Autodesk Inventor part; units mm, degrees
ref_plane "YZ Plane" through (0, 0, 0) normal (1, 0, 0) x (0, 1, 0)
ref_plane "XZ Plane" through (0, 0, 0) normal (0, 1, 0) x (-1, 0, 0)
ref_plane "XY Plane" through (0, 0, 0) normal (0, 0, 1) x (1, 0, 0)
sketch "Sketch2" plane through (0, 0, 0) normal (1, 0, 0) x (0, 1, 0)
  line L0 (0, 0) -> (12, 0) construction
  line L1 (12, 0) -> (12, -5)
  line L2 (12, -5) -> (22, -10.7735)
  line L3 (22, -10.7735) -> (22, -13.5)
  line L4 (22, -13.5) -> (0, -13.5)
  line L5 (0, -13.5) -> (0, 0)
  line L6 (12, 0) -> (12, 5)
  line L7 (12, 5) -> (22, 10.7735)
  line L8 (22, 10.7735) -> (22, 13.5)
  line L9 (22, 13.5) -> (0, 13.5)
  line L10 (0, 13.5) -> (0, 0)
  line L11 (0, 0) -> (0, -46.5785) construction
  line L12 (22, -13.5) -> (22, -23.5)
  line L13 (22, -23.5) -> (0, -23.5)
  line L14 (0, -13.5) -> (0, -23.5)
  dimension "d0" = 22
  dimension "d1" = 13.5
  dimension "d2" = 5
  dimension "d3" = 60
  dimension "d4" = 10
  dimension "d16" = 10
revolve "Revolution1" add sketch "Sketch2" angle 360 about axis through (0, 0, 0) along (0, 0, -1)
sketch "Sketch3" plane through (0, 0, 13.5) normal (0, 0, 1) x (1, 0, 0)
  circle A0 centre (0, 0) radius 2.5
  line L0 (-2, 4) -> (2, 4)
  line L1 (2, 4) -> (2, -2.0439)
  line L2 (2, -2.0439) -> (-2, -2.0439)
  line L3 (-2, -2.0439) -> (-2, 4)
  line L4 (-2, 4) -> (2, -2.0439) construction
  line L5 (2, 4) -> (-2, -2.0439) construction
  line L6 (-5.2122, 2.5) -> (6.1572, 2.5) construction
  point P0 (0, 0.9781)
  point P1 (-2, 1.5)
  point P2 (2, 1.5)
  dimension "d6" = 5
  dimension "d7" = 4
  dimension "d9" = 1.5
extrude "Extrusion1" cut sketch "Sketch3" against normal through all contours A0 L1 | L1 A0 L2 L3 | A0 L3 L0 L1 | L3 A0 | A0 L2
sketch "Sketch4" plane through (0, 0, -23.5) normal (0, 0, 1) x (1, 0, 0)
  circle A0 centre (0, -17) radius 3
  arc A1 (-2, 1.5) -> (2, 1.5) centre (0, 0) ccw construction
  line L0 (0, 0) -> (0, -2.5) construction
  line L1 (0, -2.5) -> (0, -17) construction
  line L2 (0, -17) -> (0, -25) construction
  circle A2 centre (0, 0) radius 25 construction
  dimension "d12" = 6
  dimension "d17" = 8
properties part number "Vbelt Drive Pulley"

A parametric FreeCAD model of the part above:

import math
import FreeCAD as App
import Part
import Sketcher
Q = App.Units.Quantity

doc = App.newDocument("Part")
body = doc.addObject("PartDesign::Body", "Body")

# Sketch on YZ plane
sketch1 = doc.addObject("Sketcher::SketchObject", "Sketch")
body.addObject(sketch1)
sketch1.AttachmentSupport = (doc.YZ_Plane, [""])
sketch1.MapMode = "FlatFace"
sketch1.addGeometry(Part.LineSegment(App.Vector(12, -5, 0), App.Vector(12, 5, 0)), False)
sketch1.addGeometry(Part.LineSegment(App.Vector(12, 5, 0), App.Vector(22, 10.8, 0)), False)
sketch1.addGeometry(Part.LineSegment(App.Vector(22, 10.8, 0), App.Vector(22, 13.5, 0)), False)
sketch1.addGeometry(Part.LineSegment(App.Vector(22, 13.5, 0), App.Vector(0, 13.5, 0)), False)
sketch1.addGeometry(Part.LineSegment(App.Vector(0, 13.5, 0), App.Vector(0, -23.5, 0)), False)
sketch1.addGeometry(Part.LineSegment(App.Vector(0, -23.5, 0), App.Vector(22, -23.5, 0)), False)
sketch1.addGeometry(Part.LineSegment(App.Vector(22, -23.5, 0), App.Vector(22, -10.8, 0)), False)
sketch1.addGeometry(Part.LineSegment(App.Vector(22, -10.8, 0), App.Vector(12, -5, 0)), False)
sketch1.addConstraint(Sketcher.Constraint("Coincident", 0, 2, 1, 1))
sketch1.addConstraint(Sketcher.Constraint("Coincident", 1, 2, 2, 1))
sketch1.addConstraint(Sketcher.Constraint("Coincident", 2, 2, 3, 1))
sketch1.addConstraint(Sketcher.Constraint("Coincident", 3, 2, 4, 1))
sketch1.addConstraint(Sketcher.Constraint("Coincident", 4, 2, 5, 1))
sketch1.addConstraint(Sketcher.Constraint("Coincident", 5, 2, 6, 1))
sketch1.addConstraint(Sketcher.Constraint("Coincident", 6, 2, 7, 1))
sketch1.addConstraint(Sketcher.Constraint("Coincident", 7, 2, 0, 1))
sketch1.addConstraint(Sketcher.Constraint("Vertical", 0))
sketch1.addConstraint(Sketcher.Constraint("Vertical", 2))
sketch1.addConstraint(Sketcher.Constraint("Horizontal", 3))
sketch1.addConstraint(Sketcher.Constraint("Vertical", 4))
sketch1.addConstraint(Sketcher.Constraint("Horizontal", 5))
sketch1.addConstraint(Sketcher.Constraint("Vertical", 6))
sketch1.addConstraint(Sketcher.Constraint("Symmetric", 1, 2, 6, 2, -1))
sketch1.addConstraint(Sketcher.Constraint("PointOnObject", 3, 2, -2))
sketch1.addConstraint(Sketcher.Constraint("Equal", 1, 7))
sketch1.addConstraint(Sketcher.Constraint("DistanceX", 3, 2, 3, 1, Q("22 mm")))
sketch1.addConstraint(Sketcher.Constraint("DistanceY", 0, 1, 0, 2, Q("10 mm")))
sketch1.addConstraint(Sketcher.Constraint("DistanceX", 0, 2, 1, 2, Q("10 mm")))
sketch1.addConstraint(Sketcher.Constraint("DistanceY", -1, 1, 2, 2, Q("13.5 mm")))
sketch1.addConstraint(Sketcher.Constraint("DistanceY", 4, 2, 4, 1, Q("37 mm")))
sketch1.addConstraint(Sketcher.Constraint("Angle", 1, Q("30 deg")))
revolution = doc.addObject("PartDesign::Revolution", "Revolution")
body.addObject(revolution)
revolution.Profile = sketch1
revolution.ReferenceAxis = (sketch1, ["V_Axis"])
revolution.Angle = 360

# Sketch on XY plane
sketch2 = doc.addObject("Sketcher::SketchObject", "Sketch001")
body.addObject(sketch2)
sketch2.AttachmentSupport = (doc.XY_Plane, [""])
sketch2.MapMode = "FlatFace"
sketch2.AttachmentOffset = App.Placement(App.Vector(0, 0, 13.5), App.Rotation())
sketch2.addGeometry(Part.LineSegment(App.Vector(2, 1.5, 0), App.Vector(2, 4, 0)), False)
sketch2.addGeometry(Part.LineSegment(App.Vector(2, 4, 0), App.Vector(-2, 4, 0)), False)
sketch2.addGeometry(Part.LineSegment(App.Vector(-2, 4, 0), App.Vector(-2, 1.5, 0)), False)
sketch2.addGeometry(Part.ArcOfCircle(Part.Circle(App.Vector(0, 0, 0), App.Vector(0, 0, 1), 2.5), math.radians(143), math.radians(397)), False)
sketch2.addConstraint(Sketcher.Constraint("Coincident", 0, 2, 1, 1))
sketch2.addConstraint(Sketcher.Constraint("Coincident", 1, 2, 2, 1))
sketch2.addConstraint(Sketcher.Constraint("Coincident", 2, 2, 3, 1))
sketch2.addConstraint(Sketcher.Constraint("Coincident", 3, 2, 0, 1))
sketch2.addConstraint(Sketcher.Constraint("Vertical", 0))
sketch2.addConstraint(Sketcher.Constraint("Horizontal", 1))
sketch2.addConstraint(Sketcher.Constraint("Vertical", 2))
sketch2.addConstraint(Sketcher.Constraint("Coincident", 3, 3, -1, 1))
sketch2.addConstraint(Sketcher.Constraint("Horizontal", 2, 2, 3, 2))
sketch2.addConstraint(Sketcher.Constraint("Radius", 3, Q("2.5 mm")))
sketch2.addConstraint(Sketcher.Constraint("DistanceX", 1, 2, 1, 1, Q("4 mm")))
sketch2.addConstraint(Sketcher.Constraint("DistanceY", -1, 1, 0, 2, Q("4 mm")))
pocket1 = doc.addObject("PartDesign::Pocket", "Pocket")
body.addObject(pocket1)
pocket1.Profile = sketch2
pocket1.Type = "ThroughAll"

doc.recompute()
